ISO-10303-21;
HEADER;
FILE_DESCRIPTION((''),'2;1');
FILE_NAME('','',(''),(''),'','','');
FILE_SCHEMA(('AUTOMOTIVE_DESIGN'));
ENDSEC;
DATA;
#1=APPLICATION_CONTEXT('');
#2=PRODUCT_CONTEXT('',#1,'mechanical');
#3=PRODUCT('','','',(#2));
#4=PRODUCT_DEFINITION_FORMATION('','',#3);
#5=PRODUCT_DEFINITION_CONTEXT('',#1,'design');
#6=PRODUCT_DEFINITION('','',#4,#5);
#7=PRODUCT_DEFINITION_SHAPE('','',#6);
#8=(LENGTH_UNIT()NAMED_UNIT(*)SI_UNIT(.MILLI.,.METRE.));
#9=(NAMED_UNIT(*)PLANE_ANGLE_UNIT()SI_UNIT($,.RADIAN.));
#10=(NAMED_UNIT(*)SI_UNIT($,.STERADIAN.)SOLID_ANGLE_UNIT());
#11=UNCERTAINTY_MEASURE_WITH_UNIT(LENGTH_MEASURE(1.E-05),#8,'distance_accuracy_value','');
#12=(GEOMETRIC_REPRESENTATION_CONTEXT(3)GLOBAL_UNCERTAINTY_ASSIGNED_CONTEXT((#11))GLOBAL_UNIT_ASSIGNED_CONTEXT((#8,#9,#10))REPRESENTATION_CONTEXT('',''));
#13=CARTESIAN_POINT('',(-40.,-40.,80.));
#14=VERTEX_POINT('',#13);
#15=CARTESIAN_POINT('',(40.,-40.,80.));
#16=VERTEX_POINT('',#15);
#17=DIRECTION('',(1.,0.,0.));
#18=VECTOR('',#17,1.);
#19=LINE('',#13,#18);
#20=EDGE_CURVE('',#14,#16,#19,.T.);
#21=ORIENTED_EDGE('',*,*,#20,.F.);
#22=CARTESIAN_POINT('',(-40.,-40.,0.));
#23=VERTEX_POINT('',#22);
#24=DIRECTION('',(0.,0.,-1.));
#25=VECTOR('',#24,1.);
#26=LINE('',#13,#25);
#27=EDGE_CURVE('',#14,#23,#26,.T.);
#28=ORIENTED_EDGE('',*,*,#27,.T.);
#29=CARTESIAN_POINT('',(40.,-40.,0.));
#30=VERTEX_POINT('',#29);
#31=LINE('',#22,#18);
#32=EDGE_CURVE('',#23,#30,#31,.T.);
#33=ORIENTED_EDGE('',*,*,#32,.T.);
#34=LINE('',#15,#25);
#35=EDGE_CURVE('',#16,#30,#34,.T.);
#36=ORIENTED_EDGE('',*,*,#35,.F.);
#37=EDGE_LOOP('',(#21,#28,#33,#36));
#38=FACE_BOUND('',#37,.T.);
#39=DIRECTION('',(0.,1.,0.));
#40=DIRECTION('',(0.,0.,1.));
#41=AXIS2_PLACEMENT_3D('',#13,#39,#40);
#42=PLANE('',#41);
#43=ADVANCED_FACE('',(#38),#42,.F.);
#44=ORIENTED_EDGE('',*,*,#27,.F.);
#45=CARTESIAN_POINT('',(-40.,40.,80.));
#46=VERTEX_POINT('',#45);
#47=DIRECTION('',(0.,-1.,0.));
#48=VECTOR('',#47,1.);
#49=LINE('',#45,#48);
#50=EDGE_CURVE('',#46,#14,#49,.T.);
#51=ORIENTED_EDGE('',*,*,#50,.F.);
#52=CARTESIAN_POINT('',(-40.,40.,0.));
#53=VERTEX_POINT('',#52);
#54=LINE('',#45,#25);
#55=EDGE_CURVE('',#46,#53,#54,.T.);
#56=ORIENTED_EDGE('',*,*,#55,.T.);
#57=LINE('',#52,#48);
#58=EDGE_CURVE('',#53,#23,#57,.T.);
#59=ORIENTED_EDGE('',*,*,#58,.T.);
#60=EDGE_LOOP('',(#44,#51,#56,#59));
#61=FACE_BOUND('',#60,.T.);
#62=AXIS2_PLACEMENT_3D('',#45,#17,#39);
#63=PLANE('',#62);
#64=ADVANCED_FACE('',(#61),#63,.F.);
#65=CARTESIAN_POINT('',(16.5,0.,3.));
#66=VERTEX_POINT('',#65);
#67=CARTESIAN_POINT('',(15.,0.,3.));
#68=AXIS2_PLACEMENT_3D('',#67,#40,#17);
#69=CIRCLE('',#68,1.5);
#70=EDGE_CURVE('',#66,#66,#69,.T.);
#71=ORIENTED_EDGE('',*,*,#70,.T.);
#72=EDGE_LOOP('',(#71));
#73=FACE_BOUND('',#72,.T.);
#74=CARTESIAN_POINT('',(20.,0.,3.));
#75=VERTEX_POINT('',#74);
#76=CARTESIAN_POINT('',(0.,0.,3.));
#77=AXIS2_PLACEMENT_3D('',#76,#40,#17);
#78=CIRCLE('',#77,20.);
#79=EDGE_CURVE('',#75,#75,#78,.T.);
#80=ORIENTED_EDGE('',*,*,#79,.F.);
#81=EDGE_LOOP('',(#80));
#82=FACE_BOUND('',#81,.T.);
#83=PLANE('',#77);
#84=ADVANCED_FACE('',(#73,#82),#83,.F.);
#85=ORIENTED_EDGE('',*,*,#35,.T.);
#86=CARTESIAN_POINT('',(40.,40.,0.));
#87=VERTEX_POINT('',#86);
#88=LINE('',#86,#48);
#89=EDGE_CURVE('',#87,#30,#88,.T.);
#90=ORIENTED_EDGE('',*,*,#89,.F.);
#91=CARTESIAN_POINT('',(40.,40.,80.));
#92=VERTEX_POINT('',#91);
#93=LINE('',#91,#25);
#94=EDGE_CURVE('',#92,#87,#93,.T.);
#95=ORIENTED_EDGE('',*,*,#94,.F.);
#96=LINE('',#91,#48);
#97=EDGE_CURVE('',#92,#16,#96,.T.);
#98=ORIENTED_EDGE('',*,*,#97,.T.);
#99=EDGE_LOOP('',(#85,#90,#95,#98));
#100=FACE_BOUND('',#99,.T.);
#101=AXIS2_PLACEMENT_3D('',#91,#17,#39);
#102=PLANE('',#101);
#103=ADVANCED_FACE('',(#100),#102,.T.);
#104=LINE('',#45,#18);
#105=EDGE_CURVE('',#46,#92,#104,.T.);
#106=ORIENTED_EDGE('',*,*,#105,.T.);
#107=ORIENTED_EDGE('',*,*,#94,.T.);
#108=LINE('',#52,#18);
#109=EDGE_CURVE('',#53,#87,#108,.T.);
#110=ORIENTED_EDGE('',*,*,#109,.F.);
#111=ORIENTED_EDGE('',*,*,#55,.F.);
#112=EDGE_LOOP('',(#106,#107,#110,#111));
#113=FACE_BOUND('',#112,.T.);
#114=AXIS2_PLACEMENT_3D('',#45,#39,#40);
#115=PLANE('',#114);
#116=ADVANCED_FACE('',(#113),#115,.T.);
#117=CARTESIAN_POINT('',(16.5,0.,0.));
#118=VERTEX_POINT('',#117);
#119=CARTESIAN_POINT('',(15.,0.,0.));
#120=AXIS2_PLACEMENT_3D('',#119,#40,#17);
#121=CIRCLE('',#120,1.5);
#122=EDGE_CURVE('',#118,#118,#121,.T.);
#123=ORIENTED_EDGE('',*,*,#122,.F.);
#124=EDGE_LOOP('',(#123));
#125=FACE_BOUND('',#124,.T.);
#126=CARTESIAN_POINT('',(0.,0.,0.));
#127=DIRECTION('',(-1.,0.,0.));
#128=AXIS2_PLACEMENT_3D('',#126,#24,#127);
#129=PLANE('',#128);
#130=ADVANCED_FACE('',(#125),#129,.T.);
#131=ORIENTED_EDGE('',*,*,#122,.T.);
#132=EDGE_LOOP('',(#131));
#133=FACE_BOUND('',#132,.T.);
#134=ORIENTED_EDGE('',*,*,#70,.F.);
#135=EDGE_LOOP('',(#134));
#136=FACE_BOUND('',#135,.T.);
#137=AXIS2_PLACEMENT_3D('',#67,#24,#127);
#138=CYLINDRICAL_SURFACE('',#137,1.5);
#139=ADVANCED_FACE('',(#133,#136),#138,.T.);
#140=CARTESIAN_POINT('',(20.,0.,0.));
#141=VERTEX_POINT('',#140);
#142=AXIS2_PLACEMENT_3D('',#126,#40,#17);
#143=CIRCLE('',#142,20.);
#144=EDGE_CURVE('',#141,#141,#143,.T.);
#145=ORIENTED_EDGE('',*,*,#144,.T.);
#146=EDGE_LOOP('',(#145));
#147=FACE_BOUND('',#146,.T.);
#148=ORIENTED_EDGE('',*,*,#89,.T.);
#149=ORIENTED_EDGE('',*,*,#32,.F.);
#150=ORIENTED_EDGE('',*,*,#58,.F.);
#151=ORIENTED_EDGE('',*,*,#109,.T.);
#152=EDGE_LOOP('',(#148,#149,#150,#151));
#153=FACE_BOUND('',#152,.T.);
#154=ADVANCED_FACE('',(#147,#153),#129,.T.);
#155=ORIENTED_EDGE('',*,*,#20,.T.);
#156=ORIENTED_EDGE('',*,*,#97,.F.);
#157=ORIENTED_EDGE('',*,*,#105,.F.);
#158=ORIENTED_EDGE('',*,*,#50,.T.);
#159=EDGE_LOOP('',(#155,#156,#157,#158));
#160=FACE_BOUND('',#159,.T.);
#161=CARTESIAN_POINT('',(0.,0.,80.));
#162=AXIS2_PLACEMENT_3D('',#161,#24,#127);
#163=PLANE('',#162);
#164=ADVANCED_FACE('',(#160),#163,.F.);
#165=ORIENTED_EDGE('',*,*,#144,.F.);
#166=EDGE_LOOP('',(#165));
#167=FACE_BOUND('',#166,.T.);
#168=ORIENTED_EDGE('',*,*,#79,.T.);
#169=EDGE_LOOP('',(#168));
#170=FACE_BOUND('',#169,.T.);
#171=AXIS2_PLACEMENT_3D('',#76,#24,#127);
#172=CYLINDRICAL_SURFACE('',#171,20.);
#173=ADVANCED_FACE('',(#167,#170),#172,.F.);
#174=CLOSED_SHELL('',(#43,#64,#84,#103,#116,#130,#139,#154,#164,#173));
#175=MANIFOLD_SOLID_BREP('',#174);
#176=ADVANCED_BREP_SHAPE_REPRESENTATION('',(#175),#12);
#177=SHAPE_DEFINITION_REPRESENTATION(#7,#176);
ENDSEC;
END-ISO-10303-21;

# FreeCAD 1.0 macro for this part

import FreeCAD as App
import Part
import Sketcher
Q = App.Units.Quantity


def add_polygon(sketch, points):
    """Adds a closed chain of lines whose ends are joined by coincident constraints."""
    first, n = sketch.GeometryCount, len(points)
    for a, b in zip(points, points[1:] + points[:1]):
        sketch.addGeometry(Part.LineSegment(App.Vector(*a, 0), App.Vector(*b, 0)), False)
    for i in range(n):
        sketch.addConstraint(Sketcher.Constraint("Coincident", first + i, 2, first + (i + 1) % n, 1))

doc = App.newDocument("Part")
body = doc.addObject("PartDesign::Body", "Body")

sketch1 = doc.addObject("Sketcher::SketchObject", "Sketch")
body.addObject(sketch1)
sketch1.AttachmentSupport = (doc.XY_Plane, [""])
sketch1.MapMode = "FlatFace"
add_polygon(sketch1, [(-40, 40), (-40, -40), (40, -40), (40, 40)])
sketch1.addConstraint(Sketcher.Constraint("Vertical", 0))
sketch1.addConstraint(Sketcher.Constraint("Horizontal", 1))
sketch1.addConstraint(Sketcher.Constraint("Vertical", 2))
sketch1.addConstraint(Sketcher.Constraint("Horizontal", 3))
sketch1.addConstraint(Sketcher.Constraint("Symmetric", 0, 2, 2, 2, -1, 1))
sketch1.addConstraint(Sketcher.Constraint("Equal", 3, 0))
sketch1.addConstraint(Sketcher.Constraint("DistanceX", 1, 1, 1, 2, Q("80 mm")))
pad1 = doc.addObject("PartDesign::Pad", "Pad")
body.addObject(pad1)
pad1.Profile = sketch1
pad1.Length = 80

sketch2 = doc.addObject("Sketcher::SketchObject", "Sketch001")
body.addObject(sketch2)
sketch2.AttachmentSupport = (doc.XY_Plane, [""])
sketch2.MapMode = "FlatFace"
sketch2.addGeometry(Part.Circle(App.Vector(0, 0, 0), App.Vector(0, 0, 1), 20), False)
sketch2.addGeometry(Part.Circle(App.Vector(15, 0, 0), App.Vector(0, 0, 1), 1.5), False)
sketch2.addConstraint(Sketcher.Constraint("Coincident", 0, 3, -1, 1))
sketch2.addConstraint(Sketcher.Constraint("PointOnObject", 1, 3, -1))
sketch2.addConstraint(Sketcher.Constraint("Diameter", 0, Q("40 mm")))
sketch2.addConstraint(Sketcher.Constraint("Diameter", 1, Q("3 mm")))
sketch2.addConstraint(Sketcher.Constraint("DistanceX", -1, 1, 1, 3, Q("15 mm")))
pocket1 = doc.addObject("PartDesign::Pocket", "Pocket")
body.addObject(pocket1)
pocket1.Profile = sketch2
pocket1.Length = 3
pocket1.Reversed = True

doc.recompute()
